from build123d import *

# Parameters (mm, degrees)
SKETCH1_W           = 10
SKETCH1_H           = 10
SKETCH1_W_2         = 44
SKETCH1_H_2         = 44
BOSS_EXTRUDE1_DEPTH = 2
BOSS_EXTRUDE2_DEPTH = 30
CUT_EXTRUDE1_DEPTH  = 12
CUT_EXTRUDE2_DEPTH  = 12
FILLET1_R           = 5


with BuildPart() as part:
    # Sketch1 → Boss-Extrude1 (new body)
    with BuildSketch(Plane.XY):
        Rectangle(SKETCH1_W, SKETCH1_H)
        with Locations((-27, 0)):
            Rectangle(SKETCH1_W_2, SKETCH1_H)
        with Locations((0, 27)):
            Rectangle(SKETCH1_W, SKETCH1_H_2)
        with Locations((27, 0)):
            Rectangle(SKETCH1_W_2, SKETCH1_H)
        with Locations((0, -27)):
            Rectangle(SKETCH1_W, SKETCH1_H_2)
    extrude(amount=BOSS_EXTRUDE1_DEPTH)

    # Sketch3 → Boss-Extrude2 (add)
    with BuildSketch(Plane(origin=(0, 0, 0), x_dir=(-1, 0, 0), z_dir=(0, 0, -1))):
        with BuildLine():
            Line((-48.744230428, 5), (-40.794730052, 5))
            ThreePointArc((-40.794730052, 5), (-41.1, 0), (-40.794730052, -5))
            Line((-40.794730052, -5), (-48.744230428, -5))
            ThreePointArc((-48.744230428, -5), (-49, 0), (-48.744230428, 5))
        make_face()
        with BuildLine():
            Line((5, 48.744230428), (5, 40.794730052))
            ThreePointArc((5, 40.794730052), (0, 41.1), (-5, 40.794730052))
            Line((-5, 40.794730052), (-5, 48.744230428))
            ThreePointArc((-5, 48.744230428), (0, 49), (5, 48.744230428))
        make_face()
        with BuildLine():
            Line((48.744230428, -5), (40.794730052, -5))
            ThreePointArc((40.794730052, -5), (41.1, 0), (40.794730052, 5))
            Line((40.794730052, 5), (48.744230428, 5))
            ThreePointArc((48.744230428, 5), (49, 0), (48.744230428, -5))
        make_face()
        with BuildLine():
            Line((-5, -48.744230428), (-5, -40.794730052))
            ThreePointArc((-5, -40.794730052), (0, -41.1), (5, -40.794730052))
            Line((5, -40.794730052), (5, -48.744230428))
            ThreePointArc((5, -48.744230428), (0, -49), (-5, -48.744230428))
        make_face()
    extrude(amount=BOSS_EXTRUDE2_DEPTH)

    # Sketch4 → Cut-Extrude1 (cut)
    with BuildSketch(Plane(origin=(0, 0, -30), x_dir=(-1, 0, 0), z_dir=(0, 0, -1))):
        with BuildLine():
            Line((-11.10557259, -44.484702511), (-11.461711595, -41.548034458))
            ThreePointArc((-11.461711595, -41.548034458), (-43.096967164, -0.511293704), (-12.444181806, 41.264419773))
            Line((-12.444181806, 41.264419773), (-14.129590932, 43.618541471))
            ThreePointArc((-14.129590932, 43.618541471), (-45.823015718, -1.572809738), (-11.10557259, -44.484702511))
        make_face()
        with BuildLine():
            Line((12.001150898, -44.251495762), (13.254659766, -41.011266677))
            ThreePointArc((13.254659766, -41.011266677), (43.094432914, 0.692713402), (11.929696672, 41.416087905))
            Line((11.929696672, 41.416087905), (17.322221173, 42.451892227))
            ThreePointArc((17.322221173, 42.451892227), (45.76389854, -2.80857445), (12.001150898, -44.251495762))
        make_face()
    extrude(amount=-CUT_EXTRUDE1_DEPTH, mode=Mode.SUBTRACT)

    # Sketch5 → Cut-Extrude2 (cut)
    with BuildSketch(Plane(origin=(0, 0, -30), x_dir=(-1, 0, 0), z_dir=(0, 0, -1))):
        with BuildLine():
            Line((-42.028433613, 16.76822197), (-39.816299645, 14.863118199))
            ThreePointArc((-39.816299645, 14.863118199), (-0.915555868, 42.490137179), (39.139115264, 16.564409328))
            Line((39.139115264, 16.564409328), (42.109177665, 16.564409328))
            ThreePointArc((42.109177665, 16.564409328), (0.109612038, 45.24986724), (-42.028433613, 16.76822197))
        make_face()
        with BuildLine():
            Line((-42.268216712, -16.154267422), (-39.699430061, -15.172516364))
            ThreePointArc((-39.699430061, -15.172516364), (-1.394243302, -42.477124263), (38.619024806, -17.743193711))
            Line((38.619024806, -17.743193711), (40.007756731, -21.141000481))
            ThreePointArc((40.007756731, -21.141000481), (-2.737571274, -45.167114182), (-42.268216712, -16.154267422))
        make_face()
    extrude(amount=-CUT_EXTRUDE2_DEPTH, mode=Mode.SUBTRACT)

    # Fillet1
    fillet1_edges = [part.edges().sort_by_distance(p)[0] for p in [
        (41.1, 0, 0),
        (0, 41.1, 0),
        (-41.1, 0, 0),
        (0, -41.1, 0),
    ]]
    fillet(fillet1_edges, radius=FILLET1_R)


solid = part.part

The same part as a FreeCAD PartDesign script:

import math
import FreeCAD as App
import Part
import Sketcher
from FreeCAD import Vector
Q = App.Units.Quantity


def edges_at(feature, points):
    """Names of the edges that pass closest to the given points."""
    edges = feature.Shape.Edges
    near = lambda p: min(range(len(edges)), key=lambda i: edges[i].distToShape(Part.Vertex(*p))[0])
    return sorted({f"Edge{near(p) + 1}" for p in points})

doc = App.newDocument("Part")
body = doc.addObject("PartDesign::Body", "Body")

# Sketch on XY plane
sketch1 = body.newObject("Sketcher::SketchObject", "Sketch")
sketch1.AttachmentSupport = (doc.getObject("XY_Plane"), [""])
sketch1.MapMode = "FlatFace"
sketch1.addGeometry([
    Part.LineSegment(Vector(5, 5, 0), Vector(5, 49, 0)),  # 0
    Part.LineSegment(Vector(5, 49, 0), Vector(-5, 49, 0)),  # 1
    Part.LineSegment(Vector(-5, 49, 0), Vector(-5, 5, 0)),  # 2
    Part.LineSegment(Vector(-5, 5, 0), Vector(-49, 5, 0)),  # 3
    Part.LineSegment(Vector(-49, 5, 0), Vector(-49, -5, 0)),  # 4
    Part.LineSegment(Vector(-49, -5, 0), Vector(-5, -5, 0)),  # 5
    Part.LineSegment(Vector(-5, -5, 0), Vector(-5, -49, 0)),  # 6
    Part.LineSegment(Vector(-5, -49, 0), Vector(5, -49, 0)),  # 7
    Part.LineSegment(Vector(5, -49, 0), Vector(5, -5, 0)),  # 8
    Part.LineSegment(Vector(5, -5, 0), Vector(49, -5, 0)),  # 9
    Part.LineSegment(Vector(49, -5, 0), Vector(49, 5, 0)),  # 10
    Part.LineSegment(Vector(49, 5, 0), Vector(5, 5, 0)),  # 11
], False)
sketch1.addConstraint([
    Sketcher.Constraint("Coincident", 0, 2, 1, 1),
    Sketcher.Constraint("Coincident", 1, 2, 2, 1),
    Sketcher.Constraint("Coincident", 2, 2, 3, 1),
    Sketcher.Constraint("Coincident", 3, 2, 4, 1),
    Sketcher.Constraint("Coincident", 4, 2, 5, 1),
    Sketcher.Constraint("Coincident", 5, 2, 6, 1),
    Sketcher.Constraint("Coincident", 6, 2, 7, 1),
    Sketcher.Constraint("Coincident", 7, 2, 8, 1),
    Sketcher.Constraint("Coincident", 8, 2, 9, 1),
    Sketcher.Constraint("Coincident", 9, 2, 10, 1),
    Sketcher.Constraint("Coincident", 10, 2, 11, 1),
    Sketcher.Constraint("Coincident", 11, 2, 0, 1),
    Sketcher.Constraint("Vertical", 0),
    Sketcher.Constraint("Horizontal", 1),
    Sketcher.Constraint("Vertical", 2),
    Sketcher.Constraint("Horizontal", 3),
    Sketcher.Constraint("Vertical", 4),
    Sketcher.Constraint("Horizontal", 5),
    Sketcher.Constraint("Vertical", 6),
    Sketcher.Constraint("Horizontal", 7),
    Sketcher.Constraint("Vertical", 8),
    Sketcher.Constraint("Horizontal", 9),
    Sketcher.Constraint("Vertical", 10),
    Sketcher.Constraint("Horizontal", 11),
    Sketcher.Constraint("Symmetric", 0, 2, 6, 2, -1, 1),
    Sketcher.Constraint("Symmetric", 2, 2, 8, 2, -1, 1),
    Sketcher.Constraint("Symmetric", 4, 2, 10, 2, -1, 1),
    Sketcher.Constraint("Symmetric", 5, 2, 8, 2, -2),
    Sketcher.Constraint("Equal", 11, 0),
    Sketcher.Constraint("Equal", 7, 4),
    Sketcher.Constraint("DistanceX", 1, 2, 1, 1, Q("10 mm")),
    Sketcher.Constraint("DistanceX", 3, 2, 3, 1, Q("44 mm")),
])
pad1 = body.newObject("PartDesign::Pad", "Pad")
pad1.Profile = sketch1
pad1.Length = 2

# Sketch on XY plane
sketch2 = body.newObject("Sketcher::SketchObject", "Sketch001")
sketch2.AttachmentSupport = (doc.getObject("XY_Plane"), [""])
sketch2.MapMode = "FlatFace"
sketch2.addGeometry([
    Part.LineSegment(Vector(41, 5, 0), Vector(49, 5, 0)),  # 0
    Part.ArcOfCircle(Part.Circle(Vector(0, 0, 0), Vector(0, 0, 1), 49), math.radians(-5.86), math.radians(5.86)),  # 1
    Part.LineSegment(Vector(49, -5, 0), Vector(41, -5, 0)),  # 2
    Part.ArcOfCircle(Part.Circle(Vector(0, 0, 0), Vector(0, 0, 1), 41), math.radians(-6.99), math.radians(6.99)),  # 3
    Part.LineSegment(Vector(-5, 41, 0), Vector(-5, 49, 0)),  # 4
    Part.ArcOfCircle(Part.Circle(Vector(0, 0, 0), Vector(0, 0, 1), 49), math.radians(84.14), math.radians(95.86)),  # 5
    Part.LineSegment(Vector(5, 49, 0), Vector(5, 41, 0)),  # 6
    Part.ArcOfCircle(Part.Circle(Vector(0, 0, 0), Vector(0, 0, 1), 41), math.radians(83.01), math.radians(96.99)),  # 7
    Part.LineSegment(Vector(-41, -5, 0), Vector(-49, -5, 0)),  # 8
    Part.ArcOfCircle(Part.Circle(Vector(0, 0, 0), Vector(0, 0, 1), 49), math.radians(174.14), math.radians(185.86)),  # 9
    Part.LineSegment(Vector(-49, 5, 0), Vector(-41, 5, 0)),  # 10
    Part.ArcOfCircle(Part.Circle(Vector(0, 0, 0), Vector(0, 0, 1), 41), math.radians(173.01), math.radians(186.99)),  # 11
    Part.LineSegment(Vector(5, -41, 0), Vector(5, -49, 0)),  # 12
    Part.ArcOfCircle(Part.Circle(Vector(0, 0, 0), Vector(0, 0, 1), 49), math.radians(-95.86), math.radians(-84.14)),  # 13
    Part.LineSegment(Vector(-5, -49, 0), Vector(-5, -41, 0)),  # 14
    Part.ArcOfCircle(Part.Circle(Vector(0, 0, 0), Vector(0, 0, 1), 41), math.radians(-96.99), math.radians(-83.01)),  # 15
], False)
sketch2.addConstraint([
    Sketcher.Constraint("Coincident", 0, 2, 1, 2),
    Sketcher.Constraint("Coincident", 1, 1, 2, 1),
    Sketcher.Constraint("Coincident", 2, 2, 3, 1),
    Sketcher.Constraint("Coincident", 3, 2, 0, 1),
    Sketcher.Constraint("Coincident", 4, 2, 5, 2),
    Sketcher.Constraint("Coincident", 5, 1, 6, 1),
    Sketcher.Constraint("Coincident", 6, 2, 7, 1),
    Sketcher.Constraint("Coincident", 7, 2, 4, 1),
    Sketcher.Constraint("Coincident", 8, 2, 9, 2),
    Sketcher.Constraint("Coincident", 9, 1, 10, 1),
    Sketcher.Constraint("Coincident", 10, 2, 11, 1),
    Sketcher.Constraint("Coincident", 11, 2, 8, 1),
    Sketcher.Constraint("Coincident", 12, 2, 13, 2),
    Sketcher.Constraint("Coincident", 13, 1, 14, 1),
    Sketcher.Constraint("Coincident", 14, 2, 15, 1),
    Sketcher.Constraint("Coincident", 15, 2, 12, 1),
    Sketcher.Constraint("Horizontal", 0),
    Sketcher.Constraint("Horizontal", 2),
    Sketcher.Constraint("Vertical", 4),
    Sketcher.Constraint("Vertical", 6),
    Sketcher.Constraint("Horizontal", 8),
    Sketcher.Constraint("Horizontal", 10),
    Sketcher.Constraint("Vertical", 12),
    Sketcher.Constraint("Vertical", 14),
    Sketcher.Constraint("Coincident", 1, 3, -1, 1),
    Sketcher.Constraint("Coincident", 3, 3, -1, 1),
    Sketcher.Constraint("Coincident", 5, 3, -1, 1),
    Sketcher.Constraint("Coincident", 7, 3, -1, 1),
    Sketcher.Constraint("Coincident", 9, 3, -1, 1),
    Sketcher.Constraint("Coincident", 11, 3, -1, 1),
    Sketcher.Constraint("Coincident", 13, 3, -1, 1),
    Sketcher.Constraint("Coincident", 15, 3, -1, 1),
    Sketcher.Constraint("Equal", 1, 5),
    Sketcher.Constraint("Equal", 3, 7),
    Sketcher.Constraint("Equal", 5, 9),
    Sketcher.Constraint("Equal", 7, 11),
    Sketcher.Constraint("Equal", 9, 13),
    Sketcher.Constraint("Equal", 11, 15),
    Sketcher.Constraint("Horizontal", 4, 2, 5, 1),
    Sketcher.Constraint("Horizontal", 2, 2, 8, 2),
    Sketcher.Constraint("Horizontal", 3, 2, 9, 1),
    Sketcher.Constraint("Horizontal", 12, 2, 13, 1),
    Sketcher.Constraint("Vertical", 0, 2, 1, 1),
    Sketcher.Constraint("Vertical", 6, 2, 12, 2),
    Sketcher.Constraint("Equal", 10, 4),
    Sketcher.Constraint("Radius", 1, Q("49 mm")),
    Sketcher.Constraint("Radius", 3, Q("41.1 mm")),
    Sketcher.Constraint("DistanceY", -1, 1, 0, 2, Q("5 mm")),
])
pad2 = body.newObject("PartDesign::Pad", "Pad001")
pad2.Profile = sketch2
pad2.Length = 30
pad2.Reversed = True

# Sketch on XY plane
sketch3 = body.newObject("Sketcher::SketchObject", "Sketch002")
sketch3.AttachmentSupport = (doc.getObject("XY_Plane"), [""])
sketch3.MapMode = "FlatFace"
sketch3.AttachmentOffset = App.Placement(Vector(0, 0, -30), App.Rotation())
sketch3.addGeometry([
    Part.LineSegment(Vector(11.1, -44.5, 0), Vector(11.5, -41.5, 0)),  # 0
    Part.ArcOfCircle(Part.Circle(Vector(0, 0, 0), Vector(0, 0, 1), 43.1), math.radians(-75), math.radians(73)),  # 1
    Part.LineSegment(Vector(12.4, 41.3, 0), Vector(14.1, 43.6, 0)),  # 2
    Part.ArcOfCircle(Part.Circle(Vector(0, 0, 0), Vector(0, 0, 1), 45.9), math.radians(-76), math.radians(72)),  # 3
    Part.LineSegment(Vector(-13.3, -41, 0), Vector(-12, -44.3, 0)),  # 4
    Part.ArcOfCircle(Part.Circle(Vector(0, 0, 0), Vector(0, 0, 1), 45.9), math.radians(112), math.radians(255)),  # 5
    Part.LineSegment(Vector(-17.3, 42.5, 0), Vector(-11.9, 41.4, 0)),  # 6
    Part.ArcOfCircle(Part.Circle(Vector(0, 0, 0), Vector(0, 0, 1), 43.1), math.radians(106), math.radians(252)),  # 7
], False)
sketch3.addConstraint([
    Sketcher.Constraint("Coincident", 0, 2, 1, 1),
    Sketcher.Constraint("Coincident", 1, 2, 2, 1),
    Sketcher.Constraint("Coincident", 2, 2, 3, 2),
    Sketcher.Constraint("Coincident", 3, 1, 0, 1),
    Sketcher.Constraint("Coincident", 4, 2, 5, 2),
    Sketcher.Constraint("Coincident", 5, 1, 6, 1),
    Sketcher.Constraint("Coincident", 6, 2, 7, 1),
    Sketcher.Constraint("Coincident", 7, 2, 4, 1),
    Sketcher.Constraint("Coincident", 1, 3, -1, 1),
    Sketcher.Constraint("Coincident", 3, 3, -1, 1),
    Sketcher.Constraint("Coincident", 5, 3, -1, 1),
    Sketcher.Constraint("Coincident", 7, 3, -1, 1),
    Sketcher.Constraint("Equal", 3, 5),
    Sketcher.Constraint("Equal", 1, 7),
    Sketcher.Constraint("Radius", 1, Q("43.1 mm")),
    Sketcher.Constraint("Radius", 3, Q("45.85 mm")),
    Sketcher.Constraint("DistanceX", -1, 1, 0, 2, Q("11.461712 mm")),
    Sketcher.Constraint("DistanceX", -1, 1, 1, 2, Q("12.444182 mm")),
    Sketcher.Constraint("DistanceX", -1, 1, 2, 2, Q("14.129591 mm")),
    Sketcher.Constraint("DistanceX", 4, 2, -1, 1, Q("12.001151 mm")),
    Sketcher.Constraint("DistanceX", 5, 1, -1, 1, Q("17.322221 mm")),
    Sketcher.Constraint("DistanceX", 7, 2, -1, 1, Q("13.25466 mm")),
    Sketcher.Constraint("DistanceX", 3, 1, 0, 2, Q("0.356139 mm")),
    Sketcher.Constraint("DistanceX", 6, 2, 1, 2, Q("24.373878 mm")),
])
pocket1 = body.newObject("PartDesign::Pocket", "Pocket")
pocket1.Profile = sketch3
pocket1.Length = 12
pocket1.Reversed = True

# Sketch on XY plane
sketch4 = body.newObject("Sketcher::SketchObject", "Sketch003")
sketch4.AttachmentSupport = (doc.getObject("XY_Plane"), [""])
sketch4.MapMode = "FlatFace"
sketch4.AttachmentOffset = App.Placement(Vector(0, 0, -30), App.Rotation())
sketch4.addGeometry([
    Part.LineSegment(Vector(42, 16.8, 0), Vector(39.8, 14.9, 0)),  # 0
    Part.ArcOfCircle(Part.Circle(Vector(0, 0, 0), Vector(0, 0, 1), 42.5), math.radians(20), math.radians(157)),  # 1
    Part.LineSegment(Vector(-39.1, 16.6, 0), Vector(-42.1, 16.6, 0)),  # 2
    Part.ArcOfCircle(Part.Circle(Vector(0, 0, 0), Vector(0, 0, 1), 45.2), math.radians(22), math.radians(159)),  # 3
    Part.LineSegment(Vector(39.7, -15.2, 0), Vector(42.3, -16.2, 0)),  # 4
    Part.ArcOfCircle(Part.Circle(Vector(0, 0, 0), Vector(0, 0, 1), 45.2), math.radians(-152), math.radians(-21)),  # 5
    Part.LineSegment(Vector(-40, -21.1, 0), Vector(-38.6, -17.7, 0)),  # 6
    Part.ArcOfCircle(Part.Circle(Vector(0, 0, 0), Vector(0, 0, 1), 42.5), math.radians(-155), math.radians(-21)),  # 7
], False)
sketch4.addConstraint([
    Sketcher.Constraint("Coincident", 0, 2, 1, 1),
    Sketcher.Constraint("Coincident", 1, 2, 2, 1),
    Sketcher.Constraint("Coincident", 2, 2, 3, 2),
    Sketcher.Constraint("Coincident", 3, 1, 0, 1),
    Sketcher.Constraint("Coincident", 4, 2, 5, 2),
    Sketcher.Constraint("Coincident", 5, 1, 6, 1),
    Sketcher.Constraint("Coincident", 6, 2, 7, 1),
    Sketcher.Constraint("Coincident", 7, 2, 4, 1),
    Sketcher.Constraint("Horizontal", 2),
    Sketcher.Constraint("Coincident", 1, 3, -1, 1),
    Sketcher.Constraint("Coincident", 3, 3, -1, 1),
    Sketcher.Constraint("Coincident", 5, 3, -1, 1),
    Sketcher.Constraint("Coincident", 7, 3, -1, 1),
    Sketcher.Constraint("Equal", 3, 5),
    Sketcher.Constraint("Equal", 1, 7),
    Sketcher.Constraint("Radius", 1, Q("42.5 mm")),
    Sketcher.Constraint("Radius", 3, Q("45.25 mm")),
    Sketcher.Constraint("DistanceY", 5, 1, -1, 1, Q("21.141 mm")),
    Sketcher.Constraint("DistanceX", -1, 1, 0, 2, Q("39.8163 mm")),
    Sketcher.Constraint("Distance", 0, Q("2.91941 mm")),
    Sketcher.Constraint("Distance", 6, Q("3.670649 mm")),
    Sketcher.Constraint("DistanceX", 2, 2, 2, 1, Q("2.970062 mm")),
    Sketcher.Constraint("DistanceX", -1, 1, 7, 2, Q("39.69943 mm")),
    Sketcher.Constraint("DistanceY", 4, 2, 3, 1, Q("32.922489 mm")),
])
pocket2 = body.newObject("PartDesign::Pocket", "Pocket001")
pocket2.Profile = sketch4
pocket2.Length = 12
pocket2.Reversed = True
doc.recompute()

fillet = body.newObject("PartDesign::Fillet", "Fillet")
fillet.Base = (pocket2, edges_at(pocket2, [
    (41.1, 0, 0),
    (0, 41.1, 0),
    (-41.1, 0, 0),
    (0, -41.1, 0),
]))
fillet.Radius = 5

doc.recompute()
